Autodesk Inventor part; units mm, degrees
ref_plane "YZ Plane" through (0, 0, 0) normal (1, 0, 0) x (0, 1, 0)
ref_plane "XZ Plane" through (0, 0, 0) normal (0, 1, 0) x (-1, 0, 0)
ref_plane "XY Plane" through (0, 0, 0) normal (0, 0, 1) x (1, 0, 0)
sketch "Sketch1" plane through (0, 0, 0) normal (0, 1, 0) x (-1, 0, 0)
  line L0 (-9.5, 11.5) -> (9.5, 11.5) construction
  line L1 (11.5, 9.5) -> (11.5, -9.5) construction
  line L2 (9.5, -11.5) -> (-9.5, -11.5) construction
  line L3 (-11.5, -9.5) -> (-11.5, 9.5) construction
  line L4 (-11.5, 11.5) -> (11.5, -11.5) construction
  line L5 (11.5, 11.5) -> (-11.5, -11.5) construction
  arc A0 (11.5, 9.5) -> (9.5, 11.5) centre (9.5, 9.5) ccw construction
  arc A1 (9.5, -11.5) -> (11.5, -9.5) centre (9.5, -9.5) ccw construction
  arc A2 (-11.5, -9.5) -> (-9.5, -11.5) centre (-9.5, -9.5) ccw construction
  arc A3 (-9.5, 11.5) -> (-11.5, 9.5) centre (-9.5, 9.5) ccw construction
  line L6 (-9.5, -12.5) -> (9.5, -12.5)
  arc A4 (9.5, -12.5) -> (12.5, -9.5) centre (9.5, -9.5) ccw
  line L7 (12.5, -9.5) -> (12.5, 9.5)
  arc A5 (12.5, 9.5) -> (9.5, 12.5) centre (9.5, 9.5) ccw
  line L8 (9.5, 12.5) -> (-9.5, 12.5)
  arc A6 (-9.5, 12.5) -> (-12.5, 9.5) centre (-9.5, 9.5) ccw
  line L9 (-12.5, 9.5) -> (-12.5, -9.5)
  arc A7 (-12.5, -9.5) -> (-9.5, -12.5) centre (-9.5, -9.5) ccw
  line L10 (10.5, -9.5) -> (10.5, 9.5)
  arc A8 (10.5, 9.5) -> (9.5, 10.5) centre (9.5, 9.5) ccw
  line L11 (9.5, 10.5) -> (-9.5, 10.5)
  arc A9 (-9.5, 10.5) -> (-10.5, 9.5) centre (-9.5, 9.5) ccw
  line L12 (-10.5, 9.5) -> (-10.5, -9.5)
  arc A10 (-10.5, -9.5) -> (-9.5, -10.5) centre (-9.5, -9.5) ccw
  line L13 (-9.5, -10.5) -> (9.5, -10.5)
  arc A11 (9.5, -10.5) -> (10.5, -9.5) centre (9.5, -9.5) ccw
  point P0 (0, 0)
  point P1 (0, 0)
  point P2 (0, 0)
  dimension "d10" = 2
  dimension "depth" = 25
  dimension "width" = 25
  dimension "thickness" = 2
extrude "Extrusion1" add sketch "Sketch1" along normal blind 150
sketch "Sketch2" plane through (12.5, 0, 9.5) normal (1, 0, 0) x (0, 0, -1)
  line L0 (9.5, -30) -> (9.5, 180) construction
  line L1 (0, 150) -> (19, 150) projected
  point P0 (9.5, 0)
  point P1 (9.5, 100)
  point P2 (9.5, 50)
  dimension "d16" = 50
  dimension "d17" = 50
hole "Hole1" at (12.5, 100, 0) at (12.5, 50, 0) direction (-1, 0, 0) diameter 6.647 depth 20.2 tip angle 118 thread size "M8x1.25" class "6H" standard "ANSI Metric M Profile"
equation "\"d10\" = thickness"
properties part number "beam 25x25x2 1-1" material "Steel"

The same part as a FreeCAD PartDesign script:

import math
import FreeCAD as App
import Part
import Sketcher

doc = App.newDocument("Part")
body = doc.addObject("PartDesign::Body", "Body")

# Sketch on XZ plane
sketch1 = doc.addObject("Sketcher::SketchObject", "Sketch")
body.addObject(sketch1)
sketch1.AttachmentSupport = (doc.XZ_Plane, [""])
sketch1.MapMode = "FlatFace"
sketch1.addGeometry([
    Part.ArcOfCircle(Part.Circle(App.Vector(9.5, -9.5, 0), App.Vector(0, 0, 1), 3), math.radians(-90), math.radians(0)),  # 0
    Part.LineSegment(App.Vector(9.5, -12.5, 0), App.Vector(-9.5, -12.5, 0)),  # 1
    Part.ArcOfCircle(Part.Circle(App.Vector(-9.5, -9.5, 0), App.Vector(0, 0, 1), 3), math.radians(180), math.radians(270)),  # 2
    Part.LineSegment(App.Vector(-12.5, -9.5, 0), App.Vector(-12.5, 9.5, 0)),  # 3
    Part.ArcOfCircle(Part.Circle(App.Vector(-9.5, 9.5, 0), App.Vector(0, 0, 1), 3), math.radians(90), math.radians(180)),  # 4
    Part.LineSegment(App.Vector(-9.5, 12.5, 0), App.Vector(9.5, 12.5, 0)),  # 5
    Part.ArcOfCircle(Part.Circle(App.Vector(9.5, 9.5, 0), App.Vector(0, 0, 1), 3), math.radians(0), math.radians(90)),  # 6
    Part.LineSegment(App.Vector(12.5, 9.5, 0), App.Vector(12.5, -9.5, 0)),  # 7
    Part.LineSegment(App.Vector(-10.5, 9.5, 0), App.Vector(-10.5, -9.5, 0)),  # 8
    Part.ArcOfCircle(Part.Circle(App.Vector(-9.5, -9.5, 0), App.Vector(0, 0, 1), 1), math.radians(180), math.radians(270)),  # 9
    Part.LineSegment(App.Vector(-9.5, -10.5, 0), App.Vector(9.5, -10.5, 0)),  # 10
    Part.ArcOfCircle(Part.Circle(App.Vector(9.5, -9.5, 0), App.Vector(0, 0, 1), 1), math.radians(-90), math.radians(0)),  # 11
    Part.LineSegment(App.Vector(10.5, -9.5, 0), App.Vector(10.5, 9.5, 0)),  # 12
    Part.ArcOfCircle(Part.Circle(App.Vector(9.5, 9.5, 0), App.Vector(0, 0, 1), 1), math.radians(0), math.radians(90)),  # 13
    Part.LineSegment(App.Vector(9.5, 10.5, 0), App.Vector(-9.5, 10.5, 0)),  # 14
    Part.ArcOfCircle(Part.Circle(App.Vector(-9.5, 9.5, 0), App.Vector(0, 0, 1), 1), math.radians(90), math.radians(180)),  # 15
], False)
sketch1.addConstraint([
    Sketcher.Constraint("Tangent", 0, 1, 1, 1),
    Sketcher.Constraint("Tangent", 1, 2, 2, 2),
    Sketcher.Constraint("Tangent", 2, 1, 3, 1),
    Sketcher.Constraint("Tangent", 3, 2, 4, 2),
    Sketcher.Constraint("Tangent", 4, 1, 5, 1),
    Sketcher.Constraint("Tangent", 5, 2, 6, 2),
    Sketcher.Constraint("Tangent", 6, 1, 7, 1),
    Sketcher.Constraint("Tangent", 7, 2, 0, 2),
    Sketcher.Constraint("Tangent", 8, 2, 9, 1),
    Sketcher.Constraint("Tangent", 9, 2, 10, 1),
    Sketcher.Constraint("Tangent", 10, 2, 11, 1),
    Sketcher.Constraint("Tangent", 11, 2, 12, 1),
    Sketcher.Constraint("Tangent", 12, 2, 13, 1),
    Sketcher.Constraint("Tangent", 13, 2, 14, 1),
    Sketcher.Constraint("Tangent", 14, 2, 15, 1),
    Sketcher.Constraint("Tangent", 15, 2, 8, 1),
    Sketcher.Constraint("Horizontal", 1),
    Sketcher.Constraint("Vertical", 3),
    Sketcher.Constraint("Horizontal", 5),
    Sketcher.Constraint("Vertical", 7),
    Sketcher.Constraint("Vertical", 8),
    Sketcher.Constraint("Horizontal", 10),
    Sketcher.Constraint("Vertical", 12),
    Sketcher.Constraint("Horizontal", 14),
    Sketcher.Constraint("Coincident", 9, 3, 2, 3),
    Sketcher.Constraint("Coincident", 11, 3, 0, 3),
    Sketcher.Constraint("Coincident", 13, 3, 6, 3),
    Sketcher.Constraint("Equal", 0, 2),
    Sketcher.Constraint("Equal", 2, 4),
    Sketcher.Constraint("Equal", 4, 6),
    Sketcher.Constraint("Equal", 13, 15),
    Sketcher.Constraint("Symmetric", 0, 3, 4, 3, -1, 1),
    Sketcher.Constraint("Equal", 14, 3),
    Sketcher.Constraint("Radius", 9, 1.0),
    Sketcher.Constraint("Radius", 0, 3.0),
    Sketcher.Constraint("DistanceX", 1, 2, 1, 1, 19.0),
])
pad1 = doc.addObject("PartDesign::Pad", "Pad")
body.addObject(pad1)
pad1.Profile = sketch1
pad1.Length = 150
pad1.Reversed = True

# Sketch on YZ plane
sketch2 = doc.addObject("Sketcher::SketchObject", "Sketch001")
body.addObject(sketch2)
sketch2.AttachmentSupport = (doc.YZ_Plane, [""])
sketch2.MapMode = "FlatFace"
sketch2.AttachmentOffset = App.Placement(App.Vector(0, 0, 12.5), App.Rotation())
sketch2.addGeometry([
    Part.Circle(App.Vector(100, 0, 0), App.Vector(0, 0, 1), 3.3),
    Part.Circle(App.Vector(50, 0, 0), App.Vector(0, 0, 1), 3.3),
], False)
sketch2.addConstraint([
    Sketcher.Constraint("Equal", 0, 1),
    Sketcher.Constraint("PointOnObject", 0, 3, -1),
    Sketcher.Constraint("PointOnObject", 1, 3, -1),
    Sketcher.Constraint("Diameter", 0, 6.647),
    Sketcher.Constraint("DistanceX", -1, 1, 0, 3, 100.0),
    Sketcher.Constraint("DistanceX", -1, 1, 1, 3, 50.0),
])
doc.recompute()
hole = doc.addObject("PartDesign::Hole", "Hole")
body.addObject(hole)
hole.Profile = sketch2
hole.ThreadType = "None"
hole.Diameter = 6.647
hole.DepthType = "Dimension"
hole.Depth = 20.2
hole.DrillPoint = "Angled"
hole.DrillPointAngle = 118

doc.recompute()
